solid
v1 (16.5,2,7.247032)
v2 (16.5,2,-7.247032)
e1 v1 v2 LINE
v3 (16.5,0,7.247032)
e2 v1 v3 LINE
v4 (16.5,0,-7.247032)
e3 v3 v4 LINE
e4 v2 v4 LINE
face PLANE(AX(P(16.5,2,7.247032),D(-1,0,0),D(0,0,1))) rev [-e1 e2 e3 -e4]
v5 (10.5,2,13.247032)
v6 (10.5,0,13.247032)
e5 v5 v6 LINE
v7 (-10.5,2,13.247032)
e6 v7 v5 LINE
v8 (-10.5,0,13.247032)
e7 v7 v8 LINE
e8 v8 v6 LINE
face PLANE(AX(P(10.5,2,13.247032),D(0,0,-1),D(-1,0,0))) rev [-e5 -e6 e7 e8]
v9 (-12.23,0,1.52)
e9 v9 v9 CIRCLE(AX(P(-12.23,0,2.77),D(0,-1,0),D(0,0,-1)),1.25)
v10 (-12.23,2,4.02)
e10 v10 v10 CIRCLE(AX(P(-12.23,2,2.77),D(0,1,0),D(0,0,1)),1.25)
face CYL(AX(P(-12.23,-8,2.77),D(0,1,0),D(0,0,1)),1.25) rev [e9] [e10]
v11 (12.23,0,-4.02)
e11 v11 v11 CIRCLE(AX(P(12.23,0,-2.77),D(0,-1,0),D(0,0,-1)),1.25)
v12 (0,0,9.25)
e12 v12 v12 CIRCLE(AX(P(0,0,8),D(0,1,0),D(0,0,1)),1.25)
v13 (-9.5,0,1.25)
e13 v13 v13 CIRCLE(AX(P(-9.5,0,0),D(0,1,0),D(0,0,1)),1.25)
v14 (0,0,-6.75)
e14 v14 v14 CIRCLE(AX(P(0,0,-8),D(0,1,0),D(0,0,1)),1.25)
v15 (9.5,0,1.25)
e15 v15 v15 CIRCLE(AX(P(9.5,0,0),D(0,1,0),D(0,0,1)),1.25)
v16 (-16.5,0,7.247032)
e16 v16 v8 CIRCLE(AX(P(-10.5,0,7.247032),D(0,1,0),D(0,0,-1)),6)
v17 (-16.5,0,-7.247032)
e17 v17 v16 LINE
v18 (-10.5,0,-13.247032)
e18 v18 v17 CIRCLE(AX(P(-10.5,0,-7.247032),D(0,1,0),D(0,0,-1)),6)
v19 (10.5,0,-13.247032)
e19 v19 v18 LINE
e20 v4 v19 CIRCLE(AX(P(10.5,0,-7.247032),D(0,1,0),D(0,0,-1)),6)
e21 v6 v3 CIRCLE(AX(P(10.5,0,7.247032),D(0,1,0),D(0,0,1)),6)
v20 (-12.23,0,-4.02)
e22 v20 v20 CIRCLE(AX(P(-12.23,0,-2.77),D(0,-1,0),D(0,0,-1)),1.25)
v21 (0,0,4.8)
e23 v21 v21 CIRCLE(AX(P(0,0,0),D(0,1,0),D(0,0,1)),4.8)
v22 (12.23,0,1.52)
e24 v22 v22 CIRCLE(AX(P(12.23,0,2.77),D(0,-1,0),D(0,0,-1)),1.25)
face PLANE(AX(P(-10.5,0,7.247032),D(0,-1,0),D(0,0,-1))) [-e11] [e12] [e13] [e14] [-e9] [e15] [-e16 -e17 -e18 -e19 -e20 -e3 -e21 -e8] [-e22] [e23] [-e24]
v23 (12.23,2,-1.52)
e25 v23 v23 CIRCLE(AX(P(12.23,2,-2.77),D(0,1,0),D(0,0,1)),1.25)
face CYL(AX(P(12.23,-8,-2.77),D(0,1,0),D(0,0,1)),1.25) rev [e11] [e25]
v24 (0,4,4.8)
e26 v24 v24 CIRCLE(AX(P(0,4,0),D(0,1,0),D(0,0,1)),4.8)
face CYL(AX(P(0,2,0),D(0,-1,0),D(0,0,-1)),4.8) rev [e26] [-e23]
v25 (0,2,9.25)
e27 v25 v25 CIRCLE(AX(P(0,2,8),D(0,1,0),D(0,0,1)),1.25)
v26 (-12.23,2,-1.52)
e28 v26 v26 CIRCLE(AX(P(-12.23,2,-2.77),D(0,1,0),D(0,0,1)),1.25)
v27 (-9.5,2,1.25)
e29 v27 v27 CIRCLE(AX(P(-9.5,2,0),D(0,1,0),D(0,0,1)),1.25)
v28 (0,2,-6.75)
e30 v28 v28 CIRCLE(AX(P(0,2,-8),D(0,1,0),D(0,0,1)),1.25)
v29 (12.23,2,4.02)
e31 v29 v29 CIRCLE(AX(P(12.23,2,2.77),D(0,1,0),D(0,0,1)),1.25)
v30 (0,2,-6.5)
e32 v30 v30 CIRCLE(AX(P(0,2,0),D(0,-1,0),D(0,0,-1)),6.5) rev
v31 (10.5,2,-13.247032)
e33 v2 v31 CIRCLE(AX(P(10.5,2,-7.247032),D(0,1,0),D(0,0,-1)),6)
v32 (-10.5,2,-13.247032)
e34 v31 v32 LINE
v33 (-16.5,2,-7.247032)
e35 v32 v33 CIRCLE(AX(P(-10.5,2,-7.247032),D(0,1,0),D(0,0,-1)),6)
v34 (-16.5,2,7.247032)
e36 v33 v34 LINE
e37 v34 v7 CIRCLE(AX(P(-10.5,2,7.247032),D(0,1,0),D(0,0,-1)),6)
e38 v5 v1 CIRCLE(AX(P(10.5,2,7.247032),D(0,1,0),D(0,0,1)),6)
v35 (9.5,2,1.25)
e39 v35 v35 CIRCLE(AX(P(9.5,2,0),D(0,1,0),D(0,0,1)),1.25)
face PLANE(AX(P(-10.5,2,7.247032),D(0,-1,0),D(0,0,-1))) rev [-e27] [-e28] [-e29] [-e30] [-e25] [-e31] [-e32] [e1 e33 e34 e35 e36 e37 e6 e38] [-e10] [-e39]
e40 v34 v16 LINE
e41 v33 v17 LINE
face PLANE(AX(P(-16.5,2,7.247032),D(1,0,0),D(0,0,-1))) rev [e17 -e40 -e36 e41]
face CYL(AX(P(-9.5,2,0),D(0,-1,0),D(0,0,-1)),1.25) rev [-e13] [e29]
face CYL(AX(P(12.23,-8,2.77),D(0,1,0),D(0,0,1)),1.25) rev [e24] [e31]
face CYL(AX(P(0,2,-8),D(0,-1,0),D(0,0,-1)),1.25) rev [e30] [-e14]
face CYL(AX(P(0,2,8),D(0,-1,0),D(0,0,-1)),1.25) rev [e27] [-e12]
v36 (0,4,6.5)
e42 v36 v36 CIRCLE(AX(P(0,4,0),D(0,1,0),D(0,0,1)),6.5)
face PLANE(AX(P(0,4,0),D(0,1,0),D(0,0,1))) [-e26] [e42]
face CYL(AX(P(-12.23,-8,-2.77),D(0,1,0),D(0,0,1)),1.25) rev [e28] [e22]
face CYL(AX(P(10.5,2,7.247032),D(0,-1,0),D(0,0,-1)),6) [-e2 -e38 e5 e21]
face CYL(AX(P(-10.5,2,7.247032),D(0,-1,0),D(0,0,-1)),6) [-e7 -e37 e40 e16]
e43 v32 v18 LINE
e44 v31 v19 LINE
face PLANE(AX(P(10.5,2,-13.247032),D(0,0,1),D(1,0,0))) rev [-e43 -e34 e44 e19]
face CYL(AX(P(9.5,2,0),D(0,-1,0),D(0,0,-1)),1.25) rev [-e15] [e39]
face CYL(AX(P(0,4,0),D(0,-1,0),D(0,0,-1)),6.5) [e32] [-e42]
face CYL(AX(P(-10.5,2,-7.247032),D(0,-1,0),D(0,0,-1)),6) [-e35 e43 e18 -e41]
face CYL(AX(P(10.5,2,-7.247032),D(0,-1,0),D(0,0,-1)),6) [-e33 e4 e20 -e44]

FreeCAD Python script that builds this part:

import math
import FreeCAD as App
import Part
import Sketcher
from FreeCAD import Vector

doc = App.newDocument("Part")
body = doc.addObject("PartDesign::Body", "Body")

sketch1 = body.newObject("Sketcher::SketchObject", "Sketch")
sketch1.AttachmentSupport = (doc.getObject("XZ_Plane"), [""])
sketch1.MapMode = "FlatFace"
sketch1.addGeometry(Part.LineSegment(Vector(-10.5, 13.247032, 0), Vector(10.5, 13.247032, 0)), False)
sketch1.addGeometry(Part.ArcOfCircle(Part.Circle(Vector(10.5, 7.247032, 0), Vector(0, 0, 1), 6), math.radians(0), math.radians(90)), False)
sketch1.addGeometry(Part.LineSegment(Vector(16.5, 7.247032, 0), Vector(16.5, -7.247032, 0)), False)
sketch1.addGeometry(Part.ArcOfCircle(Part.Circle(Vector(10.5, -7.247032, 0), Vector(0, 0, 1), 6), math.radians(-90), math.radians(0)), False)
sketch1.addGeometry(Part.LineSegment(Vector(10.5, -13.247032, 0), Vector(-10.5, -13.247032, 0)), False)
sketch1.addGeometry(Part.ArcOfCircle(Part.Circle(Vector(-10.5, -7.247032, 0), Vector(0, 0, 1), 6), math.radians(180), math.radians(270)), False)
sketch1.addGeometry(Part.LineSegment(Vector(-16.5, -7.247032, 0), Vector(-16.5, 7.247032, 0)), False)
sketch1.addGeometry(Part.ArcOfCircle(Part.Circle(Vector(-10.5, 7.247032, 0), Vector(0, 0, 1), 6), math.radians(90), math.radians(180)), False)
sketch1.addGeometry(Part.Circle(Vector(0, 8, 0), Vector(0, 0, 1), 1.25), False)
sketch1.addGeometry(Part.Circle(Vector(9.5, 0, 0), Vector(0, 0, 1), 1.25), False)
sketch1.addGeometry(Part.Circle(Vector(0, 0, 0), Vector(0, 0, 1), 4.8), False)
sketch1.addGeometry(Part.Circle(Vector(-9.5, 0, 0), Vector(0, 0, 1), 1.25), False)
sketch1.addGeometry(Part.Circle(Vector(0, -8, 0), Vector(0, 0, 1), 1.25), False)
sketch1.addConstraint(Sketcher.Constraint("Tangent", 0, 2, 1, 2))
sketch1.addConstraint(Sketcher.Constraint("Tangent", 1, 1, 2, 1))
sketch1.addConstraint(Sketcher.Constraint("Tangent", 2, 2, 3, 2))
sketch1.addConstraint(Sketcher.Constraint("Tangent", 3, 1, 4, 1))
sketch1.addConstraint(Sketcher.Constraint("Tangent", 4, 2, 5, 2))
sketch1.addConstraint(Sketcher.Constraint("Tangent", 5, 1, 6, 1))
sketch1.addConstraint(Sketcher.Constraint("Tangent", 6, 2, 7, 2))
sketch1.addConstraint(Sketcher.Constraint("Tangent", 7, 1, 0, 1))
sketch1.addConstraint(Sketcher.Constraint("Horizontal", 0))
sketch1.addConstraint(Sketcher.Constraint("Vertical", 2))
sketch1.addConstraint(Sketcher.Constraint("Horizontal", 4))
sketch1.addConstraint(Sketcher.Constraint("Vertical", 6))
sketch1.addConstraint(Sketcher.Constraint("Coincident", 10, 3, -1, 1))
sketch1.addConstraint(Sketcher.Constraint("Equal", 1, 3))
sketch1.addConstraint(Sketcher.Constraint("Equal", 3, 5))
sketch1.addConstraint(Sketcher.Constraint("Equal", 5, 7))
sketch1.addConstraint(Sketcher.Constraint("Equal", 8, 9))
sketch1.addConstraint(Sketcher.Constraint("Equal", 9, 11))
sketch1.addConstraint(Sketcher.Constraint("Equal", 11, 12))
sketch1.addConstraint(Sketcher.Constraint("Symmetric", 1, 3, 5, 3, -1, 1))
sketch1.addConstraint(Sketcher.Constraint("Symmetric", 9, 3, 11, 3, -1, 1))
sketch1.addConstraint(Sketcher.Constraint("Symmetric", 8, 3, 12, 3, -1, 1))
sketch1.addConstraint(Sketcher.Constraint("PointOnObject", 8, 3, -2))
sketch1.addConstraint(Sketcher.Constraint("PointOnObject", 9, 3, -1))
sketch1.addConstraint(Sketcher.Constraint("Radius", 1, 6.0))
sketch1.addConstraint(Sketcher.Constraint("Diameter", 8, 2.5))
sketch1.addConstraint(Sketcher.Constraint("Diameter", 10, 9.6))
sketch1.addConstraint(Sketcher.Constraint("DistanceX", 0, 1, 0, 2, 21.0))
sketch1.addConstraint(Sketcher.Constraint("DistanceY", -1, 1, 8, 3, 8.0))
sketch1.addConstraint(Sketcher.Constraint("DistanceX", 9, 3, 1, 3, 1.0))
sketch1.addConstraint(Sketcher.Constraint("DistanceY", 2, 2, 2, 1, 14.494063))
pad1 = body.newObject("PartDesign::Pad", "Pad")
pad1.Profile = sketch1
pad1.Length = 2
pad1.Reversed = True

sketch2 = body.newObject("Sketcher::SketchObject", "Sketch001")
sketch2.AttachmentSupport = (doc.getObject("XZ_Plane"), [""])
sketch2.MapMode = "FlatFace"
sketch2.AttachmentOffset = App.Placement(Vector(0, 0, -2), App.Rotation())
sketch2.addGeometry(Part.Circle(Vector(0, 0, 0), Vector(0, 0, 1), 6.5), False)
sketch2.addGeometry(Part.Circle(Vector(0, 0, 0), Vector(0, 0, 1), 4.8), False)
sketch2.addConstraint(Sketcher.Constraint("Coincident", 0, 3, -1, 1))
sketch2.addConstraint(Sketcher.Constraint("Coincident", 1, 3, -1, 1))
sketch2.addConstraint(Sketcher.Constraint("Diameter", 0, 13.0))
sketch2.addConstraint(Sketcher.Constraint("Diameter", 1, 9.6))
pad2 = body.newObject("PartDesign::Pad", "Pad001")
pad2.Profile = sketch2
pad2.Length = 2
pad2.Reversed = True

sketch3 = body.newObject("Sketcher::SketchObject", "Sketch002")
sketch3.AttachmentSupport = (doc.getObject("XZ_Plane"), [""])
sketch3.MapMode = "FlatFace"
sketch3.AttachmentOffset = App.Placement(Vector(0, 0, -2), App.Rotation())
sketch3.addGeometry(Part.Circle(Vector(-12.23, -2.77, 0), Vector(0, 0, 1), 1.25), False)
sketch3.addGeometry(Part.Circle(Vector(-12.23, 2.77, 0), Vector(0, 0, 1), 1.25), False)
sketch3.addGeometry(Part.Circle(Vector(12.23, 2.77, 0), Vector(0, 0, 1), 1.25), False)
sketch3.addGeometry(Part.Circle(Vector(12.23, -2.77, 0), Vector(0, 0, 1), 1.25), False)
sketch3.addConstraint(Sketcher.Constraint("Equal", 0, 1))
sketch3.addConstraint(Sketcher.Constraint("Equal", 1, 2))
sketch3.addConstraint(Sketcher.Constraint("Equal", 2, 3))
sketch3.addConstraint(Sketcher.Constraint("Symmetric", 0, 3, 2, 3, -1, 1))
sketch3.addConstraint(Sketcher.Constraint("Symmetric", 1, 3, 3, 3, -1, 1))
sketch3.addConstraint(Sketcher.Constraint("Symmetric", 1, 3, 2, 3, -2))
sketch3.addConstraint(Sketcher.Constraint("Diameter", 0, 2.5))
sketch3.addConstraint(Sketcher.Constraint("DistanceX", 0, 3, -1, 1, 12.23))
sketch3.addConstraint(Sketcher.Constraint("DistanceY", 0, 3, -1, 1, 2.77))
pocket1 = body.newObject("PartDesign::Pocket", "Pocket")
pocket1.Profile = sketch3
pocket1.Length = 10
pocket1.Reversed = True

doc.recompute()
